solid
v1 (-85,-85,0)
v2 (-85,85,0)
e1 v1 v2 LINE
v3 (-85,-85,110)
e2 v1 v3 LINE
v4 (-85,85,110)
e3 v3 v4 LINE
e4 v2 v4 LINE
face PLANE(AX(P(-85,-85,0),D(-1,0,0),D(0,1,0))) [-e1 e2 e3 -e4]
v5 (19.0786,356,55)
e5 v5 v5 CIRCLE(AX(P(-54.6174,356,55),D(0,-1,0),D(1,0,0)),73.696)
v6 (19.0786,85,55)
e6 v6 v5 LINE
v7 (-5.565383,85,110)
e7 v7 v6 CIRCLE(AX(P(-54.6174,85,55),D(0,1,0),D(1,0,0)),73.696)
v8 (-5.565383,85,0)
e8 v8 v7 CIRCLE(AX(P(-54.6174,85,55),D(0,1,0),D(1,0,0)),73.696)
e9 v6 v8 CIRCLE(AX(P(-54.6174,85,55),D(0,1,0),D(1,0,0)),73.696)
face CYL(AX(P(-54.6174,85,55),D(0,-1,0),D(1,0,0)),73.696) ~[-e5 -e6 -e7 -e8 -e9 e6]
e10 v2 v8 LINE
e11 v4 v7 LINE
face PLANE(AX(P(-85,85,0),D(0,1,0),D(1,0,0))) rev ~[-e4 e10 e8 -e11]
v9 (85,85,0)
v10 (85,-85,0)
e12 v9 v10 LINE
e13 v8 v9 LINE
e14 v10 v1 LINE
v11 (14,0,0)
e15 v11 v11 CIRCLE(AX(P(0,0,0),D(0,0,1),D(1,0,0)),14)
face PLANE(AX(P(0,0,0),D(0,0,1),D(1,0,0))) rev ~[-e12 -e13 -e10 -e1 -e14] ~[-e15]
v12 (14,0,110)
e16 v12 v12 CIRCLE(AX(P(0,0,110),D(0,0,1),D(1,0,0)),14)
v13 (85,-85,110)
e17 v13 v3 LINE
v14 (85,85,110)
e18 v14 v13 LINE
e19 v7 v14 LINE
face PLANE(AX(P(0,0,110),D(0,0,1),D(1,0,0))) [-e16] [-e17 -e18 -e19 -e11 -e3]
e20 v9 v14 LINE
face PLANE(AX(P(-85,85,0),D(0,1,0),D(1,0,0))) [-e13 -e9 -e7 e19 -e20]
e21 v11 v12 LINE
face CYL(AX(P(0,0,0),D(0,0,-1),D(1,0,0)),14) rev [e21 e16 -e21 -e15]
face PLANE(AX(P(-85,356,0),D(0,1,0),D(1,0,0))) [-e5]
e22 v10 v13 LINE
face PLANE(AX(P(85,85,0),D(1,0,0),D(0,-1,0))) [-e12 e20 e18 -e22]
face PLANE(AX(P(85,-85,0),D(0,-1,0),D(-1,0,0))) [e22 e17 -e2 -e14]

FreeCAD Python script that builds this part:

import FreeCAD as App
import Part
import Sketcher
Q = App.Units.Quantity

doc = App.newDocument("Part")
body = doc.addObject("PartDesign::Body", "Body")

# Sketch on XY plane
sketch1 = body.newObject("Sketcher::SketchObject", "Sketch")
sketch1.AttachmentSupport = (doc.getObject("XY_Plane"), [""])
sketch1.MapMode = "FlatFace"
sketch1.addGeometry(Part.LineSegment(App.Vector(85, 85, 0), App.Vector(-85, 85, 0)), False)
sketch1.addGeometry(Part.LineSegment(App.Vector(-85, 85, 0), App.Vector(-85, -85, 0)), False)
sketch1.addGeometry(Part.LineSegment(App.Vector(-85, -85, 0), App.Vector(85, -85, 0)), False)
sketch1.addGeometry(Part.LineSegment(App.Vector(85, -85, 0), App.Vector(85, 85, 0)), False)
sketch1.addGeometry(Part.Circle(App.Vector(0, 0, 0), App.Vector(0, 0, 1), 14), False)
sketch1.addConstraint(Sketcher.Constraint("Coincident", 0, 2, 1, 1))
sketch1.addConstraint(Sketcher.Constraint("Coincident", 1, 2, 2, 1))
sketch1.addConstraint(Sketcher.Constraint("Coincident", 2, 2, 3, 1))
sketch1.addConstraint(Sketcher.Constraint("Coincident", 3, 2, 0, 1))
sketch1.addConstraint(Sketcher.Constraint("Horizontal", 0))
sketch1.addConstraint(Sketcher.Constraint("Vertical", 1))
sketch1.addConstraint(Sketcher.Constraint("Horizontal", 2))
sketch1.addConstraint(Sketcher.Constraint("Vertical", 3))
sketch1.addConstraint(Sketcher.Constraint("Coincident", 4, 3, -1, 1))
sketch1.addConstraint(Sketcher.Constraint("Symmetric", 0, 2, 2, 2, -1, 1))
sketch1.addConstraint(Sketcher.Constraint("Equal", 2, 1))
sketch1.addConstraint(Sketcher.Constraint("Diameter", 4, Q("28 mm")))
sketch1.addConstraint(Sketcher.Constraint("DistanceX", 0, 2, 0, 1, Q("170 mm")))
pad1 = body.newObject("PartDesign::Pad", "Pad")
pad1.Profile = sketch1
pad1.Length = 110

# Sketch on XZ plane
sketch2 = body.newObject("Sketcher::SketchObject", "Sketch001")
sketch2.AttachmentSupport = (doc.getObject("XZ_Plane"), [""])
sketch2.MapMode = "FlatFace"
sketch2.AttachmentOffset = App.Placement(App.Vector(0, 0, -85), App.Rotation())
sketch2.addGeometry(Part.Circle(App.Vector(-55, 55, 0), App.Vector(0, 0, 1), 74), False)
sketch2.addConstraint(Sketcher.Constraint("Diameter", 0, Q("147.392 mm")))
sketch2.addConstraint(Sketcher.Constraint("DistanceY", -1, 1, 0, 3, Q("55 mm")))
sketch2.addConstraint(Sketcher.Constraint("DistanceX", 0, 3, -1, 1, Q("54.6174 mm")))
pad2 = body.newObject("PartDesign::Pad", "Pad001")
pad2.Profile = sketch2
pad2.Length = 271
pad2.Reversed = True

doc.recompute()
